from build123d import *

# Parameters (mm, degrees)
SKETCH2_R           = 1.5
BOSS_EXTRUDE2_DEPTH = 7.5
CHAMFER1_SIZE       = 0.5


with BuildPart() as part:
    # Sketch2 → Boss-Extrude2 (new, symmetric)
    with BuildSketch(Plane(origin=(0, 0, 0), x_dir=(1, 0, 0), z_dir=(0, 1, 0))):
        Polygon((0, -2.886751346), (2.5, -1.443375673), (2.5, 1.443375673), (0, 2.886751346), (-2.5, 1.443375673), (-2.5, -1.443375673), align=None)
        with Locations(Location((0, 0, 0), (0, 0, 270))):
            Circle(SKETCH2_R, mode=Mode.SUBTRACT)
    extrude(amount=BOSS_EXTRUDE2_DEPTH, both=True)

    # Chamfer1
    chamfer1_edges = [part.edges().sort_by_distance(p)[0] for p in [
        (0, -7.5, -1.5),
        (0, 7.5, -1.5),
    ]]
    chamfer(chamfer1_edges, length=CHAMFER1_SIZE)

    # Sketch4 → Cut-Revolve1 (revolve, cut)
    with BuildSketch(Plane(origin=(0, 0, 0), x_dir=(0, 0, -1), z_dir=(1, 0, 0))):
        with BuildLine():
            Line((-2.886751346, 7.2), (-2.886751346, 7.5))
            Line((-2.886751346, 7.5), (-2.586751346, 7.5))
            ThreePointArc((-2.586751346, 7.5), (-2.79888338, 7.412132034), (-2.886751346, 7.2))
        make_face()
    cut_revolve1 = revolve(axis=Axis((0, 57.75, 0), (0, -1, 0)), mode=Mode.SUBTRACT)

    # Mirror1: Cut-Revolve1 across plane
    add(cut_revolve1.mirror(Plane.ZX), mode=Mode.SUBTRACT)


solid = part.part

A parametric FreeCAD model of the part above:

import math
import FreeCAD as App
import Part
import Sketcher
Q = App.Units.Quantity


def edges_at(feature, points):
    """Names of the edges that pass closest to the given points."""
    edges = feature.Shape.Edges
    near = lambda p: min(range(len(edges)), key=lambda i: edges[i].distToShape(Part.Vertex(*p))[0])
    return sorted({f"Edge{near(p) + 1}" for p in points})

doc = App.newDocument("Part")
body = doc.addObject("PartDesign::Body", "Body")

# Sketch on XZ plane
sketch1 = doc.addObject("Sketcher::SketchObject", "Sketch")
body.addObject(sketch1)
sketch1.AttachmentSupport = (doc.XZ_Plane, [""])
sketch1.MapMode = "FlatFace"
sketch1.addGeometry(Part.LineSegment(App.Vector(0, 2.9, 0), App.Vector(2.5, 1.4, 0)), False)
sketch1.addGeometry(Part.LineSegment(App.Vector(2.5, 1.4, 0), App.Vector(2.5, -1.4, 0)), False)
sketch1.addGeometry(Part.LineSegment(App.Vector(2.5, -1.4, 0), App.Vector(0, -2.9, 0)), False)
sketch1.addGeometry(Part.LineSegment(App.Vector(0, -2.9, 0), App.Vector(-2.5, -1.4, 0)), False)
sketch1.addGeometry(Part.LineSegment(App.Vector(-2.5, -1.4, 0), App.Vector(-2.5, 1.4, 0)), False)
sketch1.addGeometry(Part.LineSegment(App.Vector(-2.5, 1.4, 0), App.Vector(0, 2.9, 0)), False)
sketch1.addGeometry(Part.Circle(App.Vector(0, 0, 0), App.Vector(0, 0, 1), 1.5), False)
sketch1.addConstraint(Sketcher.Constraint("Coincident", 0, 2, 1, 1))
sketch1.addConstraint(Sketcher.Constraint("Coincident", 1, 2, 2, 1))
sketch1.addConstraint(Sketcher.Constraint("Coincident", 2, 2, 3, 1))
sketch1.addConstraint(Sketcher.Constraint("Coincident", 3, 2, 4, 1))
sketch1.addConstraint(Sketcher.Constraint("Coincident", 4, 2, 5, 1))
sketch1.addConstraint(Sketcher.Constraint("Coincident", 5, 2, 0, 1))
sketch1.addConstraint(Sketcher.Constraint("Vertical", 1))
sketch1.addConstraint(Sketcher.Constraint("Vertical", 4))
sketch1.addConstraint(Sketcher.Constraint("Coincident", 6, 3, -1, 1))
sketch1.addConstraint(Sketcher.Constraint("Symmetric", 0, 2, 3, 2, -1, 1))
sketch1.addConstraint(Sketcher.Constraint("Symmetric", 2, 2, 5, 2, -1, 1))
sketch1.addConstraint(Sketcher.Constraint("PointOnObject", 2, 2, -2))
sketch1.addConstraint(Sketcher.Constraint("Parallel", 2, 5))
sketch1.addConstraint(Sketcher.Constraint("Horizontal", 1, 2, 3, 2))
sketch1.addConstraint(Sketcher.Constraint("Diameter", 6, 3.0))
sketch1.addConstraint(Sketcher.Constraint("Angle", 0, Q("-30 deg")))
sketch1.addConstraint(Sketcher.Constraint("DistanceX", 3, 2, 1, 2, 5.0))
sketch1.addConstraint(Sketcher.Constraint("DistanceY", 1, 2, 1, 1, 2.886751))
pad1 = doc.addObject("PartDesign::Pad", "Pad")
body.addObject(pad1)
pad1.Profile = sketch1
pad1.Length = 15
pad1.Midplane = True
doc.recompute()

chamfer = doc.addObject("PartDesign::Chamfer", "Chamfer")
body.addObject(chamfer)
chamfer.Base = (pad1, edges_at(pad1, [(0, -7.5, -1.5), (0, 7.5, -1.5)]))
chamfer.Size = 0.5

# Sketch on YZ plane
sketch2 = doc.addObject("Sketcher::SketchObject", "Sketch001")
body.addObject(sketch2)
sketch2.AttachmentSupport = (doc.YZ_Plane, [""])
sketch2.MapMode = "FlatFace"
sketch2.addGeometry(Part.LineSegment(App.Vector(7.5, 2.89, 0), App.Vector(7.2, 2.89, 0)), False)
sketch2.addGeometry(Part.ArcOfCircle(Part.Circle(App.Vector(7.2, 2.59, 0), App.Vector(0, 0, 1), 0.3), math.radians(0), math.radians(90)), False)
sketch2.addGeometry(Part.LineSegment(App.Vector(7.5, 2.59, 0), App.Vector(7.5, 2.89, 0)), False)
sketch2.addConstraint(Sketcher.Constraint("Tangent", 0, 2, 1, 2))
sketch2.addConstraint(Sketcher.Constraint("Tangent", 1, 1, 2, 1))
sketch2.addConstraint(Sketcher.Constraint("Coincident", 2, 2, 0, 1))
sketch2.addConstraint(Sketcher.Constraint("Horizontal", 0))
sketch2.addConstraint(Sketcher.Constraint("Vertical", 2))
sketch2.addConstraint(Sketcher.Constraint("Radius", 1, 0.3))
sketch2.addConstraint(Sketcher.Constraint("DistanceX", -1, 1, 1, 3, 7.2))
sketch2.addConstraint(Sketcher.Constraint("DistanceY", -1, 1, 1, 3, 2.586751))
groove = doc.addObject("PartDesign::Groove", "Groove")
body.addObject(groove)
groove.Profile = sketch2
groove.ReferenceAxis = (sketch2, ["H_Axis"])
groove.Angle = 360
doc.recompute()

mirrored = doc.addObject("PartDesign::Mirrored", "Mirrored")
body.addObject(mirrored)
mirrored.Originals = [groove]
mirrored.MirrorPlane = (doc.XZ_Plane, [""])
body.Tip = mirrored

doc.recompute()
